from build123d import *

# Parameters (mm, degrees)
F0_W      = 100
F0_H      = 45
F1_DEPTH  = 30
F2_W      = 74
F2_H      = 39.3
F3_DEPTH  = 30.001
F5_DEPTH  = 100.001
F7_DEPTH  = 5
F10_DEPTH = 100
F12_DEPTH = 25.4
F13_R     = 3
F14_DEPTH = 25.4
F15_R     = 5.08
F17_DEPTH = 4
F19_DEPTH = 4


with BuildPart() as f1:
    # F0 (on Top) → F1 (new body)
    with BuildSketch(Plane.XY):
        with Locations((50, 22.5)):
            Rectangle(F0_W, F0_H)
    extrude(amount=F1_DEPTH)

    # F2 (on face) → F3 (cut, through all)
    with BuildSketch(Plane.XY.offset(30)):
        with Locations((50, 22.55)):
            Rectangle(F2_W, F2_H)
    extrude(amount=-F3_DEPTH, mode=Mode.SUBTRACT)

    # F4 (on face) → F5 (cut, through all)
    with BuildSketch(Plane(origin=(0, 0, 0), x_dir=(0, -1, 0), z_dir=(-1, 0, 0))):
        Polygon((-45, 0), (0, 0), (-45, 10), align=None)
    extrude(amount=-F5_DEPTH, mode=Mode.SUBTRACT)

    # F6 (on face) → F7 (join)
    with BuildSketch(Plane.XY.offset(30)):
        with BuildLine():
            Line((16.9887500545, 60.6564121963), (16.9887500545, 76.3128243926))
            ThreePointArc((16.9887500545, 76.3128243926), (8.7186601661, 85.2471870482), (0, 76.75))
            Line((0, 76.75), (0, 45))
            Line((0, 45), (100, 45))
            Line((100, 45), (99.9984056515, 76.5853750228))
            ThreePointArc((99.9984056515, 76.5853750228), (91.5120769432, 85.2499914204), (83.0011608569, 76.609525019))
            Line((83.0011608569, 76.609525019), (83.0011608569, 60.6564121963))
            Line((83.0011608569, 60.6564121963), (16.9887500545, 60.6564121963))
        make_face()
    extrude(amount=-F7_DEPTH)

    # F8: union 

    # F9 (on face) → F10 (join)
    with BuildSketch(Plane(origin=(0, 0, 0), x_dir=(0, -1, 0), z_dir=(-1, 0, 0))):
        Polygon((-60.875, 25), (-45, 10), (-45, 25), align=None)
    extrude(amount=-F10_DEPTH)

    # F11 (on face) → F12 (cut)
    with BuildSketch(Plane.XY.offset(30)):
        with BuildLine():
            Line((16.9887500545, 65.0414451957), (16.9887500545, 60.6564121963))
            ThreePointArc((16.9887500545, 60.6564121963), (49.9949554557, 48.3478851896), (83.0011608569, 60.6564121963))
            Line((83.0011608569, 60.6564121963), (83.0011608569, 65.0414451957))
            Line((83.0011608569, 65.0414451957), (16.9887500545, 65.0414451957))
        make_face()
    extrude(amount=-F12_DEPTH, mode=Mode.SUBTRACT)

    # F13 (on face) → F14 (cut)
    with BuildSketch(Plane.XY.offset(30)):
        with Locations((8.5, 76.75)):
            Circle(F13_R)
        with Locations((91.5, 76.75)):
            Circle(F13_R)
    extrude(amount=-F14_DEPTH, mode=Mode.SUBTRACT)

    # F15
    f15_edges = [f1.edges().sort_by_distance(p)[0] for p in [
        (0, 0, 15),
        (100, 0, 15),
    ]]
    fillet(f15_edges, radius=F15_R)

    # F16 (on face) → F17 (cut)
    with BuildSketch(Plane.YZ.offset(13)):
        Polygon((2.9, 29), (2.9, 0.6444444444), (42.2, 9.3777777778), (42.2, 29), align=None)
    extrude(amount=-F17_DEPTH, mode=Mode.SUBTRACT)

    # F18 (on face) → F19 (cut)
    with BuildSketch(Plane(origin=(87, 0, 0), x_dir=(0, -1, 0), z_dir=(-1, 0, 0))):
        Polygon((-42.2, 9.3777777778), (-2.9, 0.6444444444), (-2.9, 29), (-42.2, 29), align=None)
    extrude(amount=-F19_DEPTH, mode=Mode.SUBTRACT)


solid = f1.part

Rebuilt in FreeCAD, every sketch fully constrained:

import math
import FreeCAD as App
import Part
import Sketcher

V = App.Vector


def edges_at(feature, points):
    """Names of the edges that pass closest to the given points."""
    edges = feature.Shape.Edges
    near = lambda p: min(range(len(edges)), key=lambda i: edges[i].distToShape(Part.Vertex(*p))[0])
    return sorted({f"Edge{near(p) + 1}" for p in points})

doc = App.newDocument("Part")
body = doc.addObject("PartDesign::Body", "Body")

sketch1 = body.newObject("Sketcher::SketchObject", "Sketch")
sketch1.AttachmentSupport = (doc.getObject("XY_Plane"), [""])
sketch1.MapMode = "FlatFace"
sketch1.addGeometry([
    Part.LineSegment(V(0, 45, 0), V(0, 0, 0)),
    Part.LineSegment(V(0, 0, 0), V(100, 0, 0)),
    Part.LineSegment(V(100, 0, 0), V(100, 45, 0)),
    Part.LineSegment(V(100, 45, 0), V(0, 45, 0)),
], False)
sketch1.addConstraint([
    Sketcher.Constraint("Coincident", 0, 2, 1, 1),
    Sketcher.Constraint("Coincident", 1, 2, 2, 1),
    Sketcher.Constraint("Coincident", 2, 2, 3, 1),
    Sketcher.Constraint("Coincident", 3, 2, 0, 1),
    Sketcher.Constraint("Vertical", 0),
    Sketcher.Constraint("Horizontal", 1),
    Sketcher.Constraint("Vertical", 2),
    Sketcher.Constraint("Horizontal", 3),
    Sketcher.Constraint("Coincident", 0, 2, -1, 1),
    Sketcher.Constraint("DistanceX", 1, 1, 1, 2, 100.0),
    Sketcher.Constraint("DistanceY", 0, 2, 0, 1, 45.0),
])
pad1 = body.newObject("PartDesign::Pad", "Pad")
pad1.Profile = sketch1
pad1.Length = 30

sketch2 = body.newObject("Sketcher::SketchObject", "Sketch001")
sketch2.AttachmentSupport = (doc.getObject("XY_Plane"), [""])
sketch2.MapMode = "FlatFace"
sketch2.AttachmentOffset = App.Placement(V(0, 0, 30), App.Rotation())
sketch2.addGeometry([
    Part.LineSegment(V(13, 42, 0), V(13, 3, 0)),
    Part.LineSegment(V(13, 3, 0), V(87, 3, 0)),
    Part.LineSegment(V(87, 3, 0), V(87, 42, 0)),
    Part.LineSegment(V(87, 42, 0), V(13, 42, 0)),
], False)
sketch2.addConstraint([
    Sketcher.Constraint("Coincident", 0, 2, 1, 1),
    Sketcher.Constraint("Coincident", 1, 2, 2, 1),
    Sketcher.Constraint("Coincident", 2, 2, 3, 1),
    Sketcher.Constraint("Coincident", 3, 2, 0, 1),
    Sketcher.Constraint("Vertical", 0),
    Sketcher.Constraint("Horizontal", 1),
    Sketcher.Constraint("Vertical", 2),
    Sketcher.Constraint("Horizontal", 3),
    Sketcher.Constraint("DistanceX", 1, 1, 1, 2, 74.0),
    Sketcher.Constraint("DistanceY", 0, 2, 0, 1, 39.3),
    Sketcher.Constraint("DistanceX", -1, 1, 0, 2, 13.0),
    Sketcher.Constraint("DistanceY", -1, 1, 0, 2, 2.9),
])
pocket1 = body.newObject("PartDesign::Pocket", "Pocket")
pocket1.Profile = sketch2
pocket1.Type = "ThroughAll"

sketch3 = body.newObject("Sketcher::SketchObject", "Sketch002")
sketch3.AttachmentSupport = (doc.getObject("YZ_Plane"), [""])
sketch3.MapMode = "FlatFace"
sketch3.addGeometry([
    Part.LineSegment(V(45, 0, 0), V(0, 0, 0)),
    Part.LineSegment(V(0, 0, 0), V(45, 10, 0)),
    Part.LineSegment(V(45, 10, 0), V(45, 0, 0)),
], False)
sketch3.addConstraint([
    Sketcher.Constraint("Coincident", 0, 2, 1, 1),
    Sketcher.Constraint("Coincident", 1, 2, 2, 1),
    Sketcher.Constraint("Coincident", 2, 2, 0, 1),
    Sketcher.Constraint("Horizontal", 0),
    Sketcher.Constraint("Vertical", 2),
    Sketcher.Constraint("Coincident", 0, 2, -1, 1),
    Sketcher.Constraint("DistanceX", 0, 2, 0, 1, 45.0),
    Sketcher.Constraint("DistanceY", 2, 2, 2, 1, 10.0),
])
pocket2 = body.newObject("PartDesign::Pocket", "Pocket001")
pocket2.Profile = sketch3
pocket2.Type = "ThroughAll"
pocket2.Reversed = True

sketch4 = body.newObject("Sketcher::SketchObject", "Sketch003")
sketch4.AttachmentSupport = (doc.getObject("XY_Plane"), [""])
sketch4.MapMode = "FlatFace"
sketch4.AttachmentOffset = App.Placement(V(0, 0, 30), App.Rotation())
sketch4.addGeometry([
    Part.LineSegment(V(17, 61, 0), V(17, 76, 0)),
    Part.ArcOfCircle(Part.Circle(V(8, 77, 0), V(0, 0, 1), 8), math.radians(-3), math.radians(180)),
    Part.LineSegment(V(0, 77, 0), V(0, 45, 0)),
    Part.LineSegment(V(0, 45, 0), V(100, 45, 0)),
    Part.LineSegment(V(100, 45, 0), V(100, 77, 0)),
    Part.ArcOfCircle(Part.Circle(V(92, 77, 0), V(0, 0, 1), 8), math.radians(-1), math.radians(181)),
    Part.LineSegment(V(83, 77, 0), V(83, 61, 0)),
    Part.LineSegment(V(83, 61, 0), V(17, 61, 0)),
], False)
sketch4.addConstraint([
    Sketcher.Constraint("Coincident", 0, 2, 1, 1),
    Sketcher.Constraint("Tangent", 1, 2, 2, 1),
    Sketcher.Constraint("Coincident", 2, 2, 3, 1),
    Sketcher.Constraint("Coincident", 3, 2, 4, 1),
    Sketcher.Constraint("Coincident", 4, 2, 5, 1),
    Sketcher.Constraint("Coincident", 5, 2, 6, 1),
    Sketcher.Constraint("Coincident", 6, 2, 7, 1),
    Sketcher.Constraint("Coincident", 7, 2, 0, 1),
    Sketcher.Constraint("Vertical", 0),
    Sketcher.Constraint("Vertical", 2),
    Sketcher.Constraint("Horizontal", 3),
    Sketcher.Constraint("Vertical", 6),
    Sketcher.Constraint("Horizontal", 7),
    Sketcher.Constraint("Equal", 1, 5),
    Sketcher.Constraint("PointOnObject", 1, 2, -2),
    Sketcher.Constraint("Horizontal", 1, 3, 5, 3),
    Sketcher.Constraint("Radius", 1, 8.5),
    Sketcher.Constraint("DistanceX", 3, 1, 3, 2, 100.0),
    Sketcher.Constraint("DistanceY", -1, 1, 2, 2, 45.0),
    Sketcher.Constraint("DistanceX", 1, 3, 5, 3, 83.0),
    Sketcher.Constraint("DistanceY", 2, 2, 2, 1, 31.75),
    Sketcher.Constraint("DistanceX", 7, 2, 7, 1, 66.012411),
    Sketcher.Constraint("DistanceY", 0, 2, 5, 2, 0.296701),
    Sketcher.Constraint("DistanceY", 0, 1, 0, 2, 15.656412),
    Sketcher.Constraint("DistanceY", 0, 2, 4, 2, 0.272551),
])
pad2 = body.newObject("PartDesign::Pad", "Pad001")
pad2.Profile = sketch4
pad2.Length = 5
pad2.Reversed = True

sketch5 = body.newObject("Sketcher::SketchObject", "Sketch004")
sketch5.AttachmentSupport = (doc.getObject("YZ_Plane"), [""])
sketch5.MapMode = "FlatFace"
sketch5.addGeometry([
    Part.LineSegment(V(61, 25, 0), V(45, 10, 0)),
    Part.LineSegment(V(45, 10, 0), V(45, 25, 0)),
    Part.LineSegment(V(45, 25, 0), V(61, 25, 0)),
], False)
sketch5.addConstraint([
    Sketcher.Constraint("Coincident", 0, 2, 1, 1),
    Sketcher.Constraint("Coincident", 1, 2, 2, 1),
    Sketcher.Constraint("Coincident", 2, 2, 0, 1),
    Sketcher.Constraint("Vertical", 1),
    Sketcher.Constraint("Horizontal", 2),
    Sketcher.Constraint("DistanceY", 1, 1, 1, 2, 15.0),
    Sketcher.Constraint("DistanceX", -1, 1, 0, 2, 45.0),
    Sketcher.Constraint("DistanceY", -1, 1, 0, 2, 10.0),
    Sketcher.Constraint("DistanceX", 2, 1, 2, 2, 15.875),
])
pad3 = body.newObject("PartDesign::Pad", "Pad002")
pad3.Profile = sketch5
pad3.Length = 100

sketch6 = body.newObject("Sketcher::SketchObject", "Sketch005")
sketch6.AttachmentSupport = (doc.getObject("XY_Plane"), [""])
sketch6.MapMode = "FlatFace"
sketch6.AttachmentOffset = App.Placement(V(0, 0, 30), App.Rotation())
sketch6.addGeometry([
    Part.LineSegment(V(17, 65, 0), V(17, 60.7, 0)),
    Part.ArcOfCircle(Part.Circle(V(50, 98.8, 0), V(0, 0, 1), 50.4), math.radians(-131), math.radians(-49)),
    Part.LineSegment(V(83, 60.7, 0), V(83, 65, 0)),
    Part.LineSegment(V(83, 65, 0), V(17, 65, 0)),
], False)
sketch6.addConstraint([
    Sketcher.Constraint("Coincident", 0, 2, 1, 1),
    Sketcher.Constraint("Coincident", 1, 2, 2, 1),
    Sketcher.Constraint("Coincident", 2, 2, 3, 1),
    Sketcher.Constraint("Coincident", 3, 2, 0, 1),
    Sketcher.Constraint("Vertical", 0),
    Sketcher.Constraint("Vertical", 2),
    Sketcher.Constraint("Horizontal", 3),
    Sketcher.Constraint("Horizontal", 0, 2, 1, 2),
    Sketcher.Constraint("DistanceY", 0, 2, 1, 3, 38.1),
    Sketcher.Constraint("Radius", 1, 50.408527),
    Sketcher.Constraint("DistanceY", 0, 2, 0, 1, 4.385033),
    Sketcher.Constraint("DistanceX", -1, 1, 0, 2, 16.98875),
    Sketcher.Constraint("DistanceY", -1, 1, 1, 3, 98.756412),
])
pocket3 = body.newObject("PartDesign::Pocket", "Pocket002")
pocket3.Profile = sketch6
pocket3.Length = 25.4

sketch7 = body.newObject("Sketcher::SketchObject", "Sketch006")
sketch7.AttachmentSupport = (doc.getObject("XY_Plane"), [""])
sketch7.MapMode = "FlatFace"
sketch7.AttachmentOffset = App.Placement(V(0, 0, 30), App.Rotation())
sketch7.addGeometry([
    Part.Circle(V(8.5, 76.8, 0), V(0, 0, 1), 3),
    Part.Circle(V(91.5, 76.8, 0), V(0, 0, 1), 3),
], False)
sketch7.addConstraint([
    Sketcher.Constraint("Equal", 0, 1),
    Sketcher.Constraint("Horizontal", 0, 3, 1, 3),
    Sketcher.Constraint("Diameter", 0, 6.0),
    Sketcher.Constraint("DistanceX", 0, 3, 1, 3, 83.0),
    Sketcher.Constraint("DistanceX", -1, 1, 0, 3, 8.5),
    Sketcher.Constraint("DistanceY", -1, 1, 0, 3, 76.75),
])
pocket4 = body.newObject("PartDesign::Pocket", "Pocket003")
pocket4.Profile = sketch7
pocket4.Length = 25.4
doc.recompute()

fillet = body.newObject("PartDesign::Fillet", "Fillet")
fillet.Base = (pocket4, edges_at(pocket4, [(0, 0, 15), (100, 0, 15)]))
fillet.Radius = 5.08

sketch8 = body.newObject("Sketcher::SketchObject", "Sketch007")
sketch8.AttachmentSupport = (doc.getObject("YZ_Plane"), [""])
sketch8.MapMode = "FlatFace"
sketch8.AttachmentOffset = App.Placement(V(0, 0, 13), App.Rotation())
sketch8.addGeometry([
    Part.LineSegment(V(3, 29, 0), V(3, 1, 0)),
    Part.LineSegment(V(3, 1, 0), V(42, 9, 0)),
    Part.LineSegment(V(42, 9, 0), V(42, 29, 0)),
    Part.LineSegment(V(42, 29, 0), V(3, 29, 0)),
], False)
sketch8.addConstraint([
    Sketcher.Constraint("Coincident", 0, 2, 1, 1),
    Sketcher.Constraint("Coincident", 1, 2, 2, 1),
    Sketcher.Constraint("Coincident", 2, 2, 3, 1),
    Sketcher.Constraint("Coincident", 3, 2, 0, 1),
    Sketcher.Constraint("Vertical", 0),
    Sketcher.Constraint("Vertical", 2),
    Sketcher.Constraint("Horizontal", 3),
    Sketcher.Constraint("DistanceX", 3, 2, 3, 1, 39.3),
    Sketcher.Constraint("DistanceY", -1, 1, 2, 2, 29.0),
    Sketcher.Constraint("DistanceX", -1, 1, 0, 2, 2.9),
    Sketcher.Constraint("DistanceY", 0, 2, 0, 1, 28.355556),
    Sketcher.Constraint("DistanceY", 2, 1, 2, 2, 19.622222),
])
pocket5 = body.newObject("PartDesign::Pocket", "Pocket004")
pocket5.Profile = sketch8
pocket5.Length = 4

sketch9 = body.newObject("Sketcher::SketchObject", "Sketch008")
sketch9.AttachmentSupport = (doc.getObject("YZ_Plane"), [""])
sketch9.MapMode = "FlatFace"
sketch9.AttachmentOffset = App.Placement(V(0, 0, 87), App.Rotation())
sketch9.addGeometry([
    Part.LineSegment(V(42, 9, 0), V(3, 1, 0)),
    Part.LineSegment(V(3, 1, 0), V(3, 29, 0)),
    Part.LineSegment(V(3, 29, 0), V(42, 29, 0)),
    Part.LineSegment(V(42, 29, 0), V(42, 9, 0)),
], False)
sketch9.addConstraint([
    Sketcher.Constraint("Coincident", 0, 2, 1, 1),
    Sketcher.Constraint("Coincident", 1, 2, 2, 1),
    Sketcher.Constraint("Coincident", 2, 2, 3, 1),
    Sketcher.Constraint("Coincident", 3, 2, 0, 1),
    Sketcher.Constraint("Vertical", 1),
    Sketcher.Constraint("Horizontal", 2),
    Sketcher.Constraint("Vertical", 3),
    Sketcher.Constraint("DistanceX", 2, 1, 2, 2, 39.3),
    Sketcher.Constraint("DistanceY", -1, 1, 1, 2, 29.0),
    Sketcher.Constraint("DistanceX", -1, 1, 0, 2, 2.9),
    Sketcher.Constraint("DistanceY", 1, 1, 1, 2, 28.355556),
    Sketcher.Constraint("DistanceY", 3, 2, 3, 1, 19.622222),
])
pocket6 = body.newObject("PartDesign::Pocket", "Pocket005")
pocket6.Profile = sketch9
pocket6.Length = 4
pocket6.Reversed = True

doc.recompute()
